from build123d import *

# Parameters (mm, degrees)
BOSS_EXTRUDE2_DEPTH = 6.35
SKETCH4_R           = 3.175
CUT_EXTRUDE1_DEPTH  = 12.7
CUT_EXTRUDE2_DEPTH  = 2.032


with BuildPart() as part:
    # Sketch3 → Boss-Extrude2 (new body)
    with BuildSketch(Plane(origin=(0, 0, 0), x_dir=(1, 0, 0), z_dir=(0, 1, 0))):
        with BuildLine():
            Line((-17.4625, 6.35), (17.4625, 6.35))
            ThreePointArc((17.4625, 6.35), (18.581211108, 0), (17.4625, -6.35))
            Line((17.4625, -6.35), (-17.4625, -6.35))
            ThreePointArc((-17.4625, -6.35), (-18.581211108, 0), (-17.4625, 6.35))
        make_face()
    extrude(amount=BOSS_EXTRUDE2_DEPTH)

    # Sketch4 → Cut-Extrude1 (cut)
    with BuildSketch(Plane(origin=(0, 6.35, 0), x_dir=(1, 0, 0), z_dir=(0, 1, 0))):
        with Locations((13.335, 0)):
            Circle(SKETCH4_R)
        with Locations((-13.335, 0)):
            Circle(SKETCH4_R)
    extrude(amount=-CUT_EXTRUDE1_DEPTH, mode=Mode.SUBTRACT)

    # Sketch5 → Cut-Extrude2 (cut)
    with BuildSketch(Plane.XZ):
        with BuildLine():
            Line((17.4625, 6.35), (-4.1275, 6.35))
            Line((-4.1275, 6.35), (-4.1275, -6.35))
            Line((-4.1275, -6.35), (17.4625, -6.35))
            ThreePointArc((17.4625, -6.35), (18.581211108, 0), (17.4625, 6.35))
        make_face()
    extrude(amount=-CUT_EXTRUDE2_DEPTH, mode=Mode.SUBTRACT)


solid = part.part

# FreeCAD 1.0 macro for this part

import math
import FreeCAD as App
import Part
import Sketcher

V = App.Vector
Q = App.Units.Quantity

doc = App.newDocument("Part")
body = doc.addObject("PartDesign::Body", "Body")

sketch1 = doc.addObject("Sketcher::SketchObject", "Sketch")
body.addObject(sketch1)
sketch1.AttachmentSupport = (doc.XZ_Plane, [""])
sketch1.MapMode = "FlatFace"
sketch1.addGeometry(Part.LineSegment(V(17, -6, 0), V(-17, -6, 0)), False)
sketch1.addGeometry(Part.ArcOfCircle(Part.Circle(V(0, 0, 0), V(0, 0, 1), 19), math.radians(160), math.radians(200)), False)
sketch1.addGeometry(Part.LineSegment(V(-17, 6, 0), V(17, 6, 0)), False)
sketch1.addGeometry(Part.ArcOfCircle(Part.Circle(V(0, 0, 0), V(0, 0, 1), 19), math.radians(-20), math.radians(20)), False)
sketch1.addConstraint(Sketcher.Constraint("Coincident", 0, 2, 1, 2))
sketch1.addConstraint(Sketcher.Constraint("Coincident", 1, 1, 2, 1))
sketch1.addConstraint(Sketcher.Constraint("Coincident", 2, 2, 3, 2))
sketch1.addConstraint(Sketcher.Constraint("Coincident", 3, 1, 0, 1))
sketch1.addConstraint(Sketcher.Constraint("Horizontal", 0))
sketch1.addConstraint(Sketcher.Constraint("Horizontal", 2))
sketch1.addConstraint(Sketcher.Constraint("Coincident", 1, 3, -1, 1))
sketch1.addConstraint(Sketcher.Constraint("Coincident", 3, 3, -1, 1))
sketch1.addConstraint(Sketcher.Constraint("Equal", 1, 3))
sketch1.addConstraint(Sketcher.Constraint("Vertical", 0, 2, 1, 1))
sketch1.addConstraint(Sketcher.Constraint("DistanceY", 0, 2, 1, 1, Q("0.5 in")))
sketch1.addConstraint(Sketcher.Constraint("DistanceX", 0, 2, 0, 1, Q("1.375 in")))
pad1 = doc.addObject("PartDesign::Pad", "Pad")
body.addObject(pad1)
pad1.Profile = sketch1
pad1.Length = Q("0.25 in")
pad1.Reversed = True

sketch2 = doc.addObject("Sketcher::SketchObject", "Sketch001")
body.addObject(sketch2)
sketch2.AttachmentSupport = (doc.XZ_Plane, [""])
sketch2.MapMode = "FlatFace"
sketch2.AttachmentOffset = App.Placement(V(0, 0, -0.25 * 25.4), App.Rotation())
sketch2.addGeometry(Part.Circle(V(13.3, 0, 0), V(0, 0, 1), 3.2), False)
sketch2.addGeometry(Part.Circle(V(-13.3, 0, 0), V(0, 0, 1), 3.2), False)
sketch2.addConstraint(Sketcher.Constraint("Equal", 0, 1))
sketch2.addConstraint(Sketcher.Constraint("Symmetric", 0, 3, 1, 3, -1, 1))
sketch2.addConstraint(Sketcher.Constraint("PointOnObject", 0, 3, -1))
sketch2.addConstraint(Sketcher.Constraint("Diameter", 0, Q("0.25 in")))
sketch2.addConstraint(Sketcher.Constraint("DistanceX", 1, 3, 0, 3, Q("1.05 in")))
pocket1 = doc.addObject("PartDesign::Pocket", "Pocket")
body.addObject(pocket1)
pocket1.Profile = sketch2
pocket1.Length = Q("0.5 in")
pocket1.Reversed = True

sketch3 = doc.addObject("Sketcher::SketchObject", "Sketch002")
body.addObject(sketch3)
sketch3.AttachmentSupport = (doc.XZ_Plane, [""])
sketch3.MapMode = "FlatFace"
sketch3.addGeometry(Part.LineSegment(V(17, 6, 0), V(-4, 6, 0)), False)
sketch3.addGeometry(Part.LineSegment(V(-4, 6, 0), V(-4, -6, 0)), False)
sketch3.addGeometry(Part.LineSegment(V(-4, -6, 0), V(17, -6, 0)), False)
sketch3.addGeometry(Part.ArcOfCircle(Part.Circle(V(0, 0, 0), V(0, 0, 1), 19), math.radians(-20), math.radians(20)), False)
sketch3.addConstraint(Sketcher.Constraint("Coincident", 0, 2, 1, 1))
sketch3.addConstraint(Sketcher.Constraint("Coincident", 1, 2, 2, 1))
sketch3.addConstraint(Sketcher.Constraint("Coincident", 2, 2, 3, 1))
sketch3.addConstraint(Sketcher.Constraint("Coincident", 3, 2, 0, 1))
sketch3.addConstraint(Sketcher.Constraint("Horizontal", 0))
sketch3.addConstraint(Sketcher.Constraint("Vertical", 1))
sketch3.addConstraint(Sketcher.Constraint("Horizontal", 2))
sketch3.addConstraint(Sketcher.Constraint("Coincident", 3, 3, -1, 1))
sketch3.addConstraint(Sketcher.Constraint("Vertical", 2, 2, 3, 2))
sketch3.addConstraint(Sketcher.Constraint("DistanceY", 1, 2, 1, 1, Q("0.5 in")))
sketch3.addConstraint(Sketcher.Constraint("DistanceX", 0, 2, 0, 1, Q("0.85 in")))
sketch3.addConstraint(Sketcher.Constraint("DistanceX", -1, 1, 2, 2, Q("0.6875 in")))
pocket2 = doc.addObject("PartDesign::Pocket", "Pocket001")
body.addObject(pocket2)
pocket2.Profile = sketch3
pocket2.Length = Q("0.08 in")

doc.recompute()
